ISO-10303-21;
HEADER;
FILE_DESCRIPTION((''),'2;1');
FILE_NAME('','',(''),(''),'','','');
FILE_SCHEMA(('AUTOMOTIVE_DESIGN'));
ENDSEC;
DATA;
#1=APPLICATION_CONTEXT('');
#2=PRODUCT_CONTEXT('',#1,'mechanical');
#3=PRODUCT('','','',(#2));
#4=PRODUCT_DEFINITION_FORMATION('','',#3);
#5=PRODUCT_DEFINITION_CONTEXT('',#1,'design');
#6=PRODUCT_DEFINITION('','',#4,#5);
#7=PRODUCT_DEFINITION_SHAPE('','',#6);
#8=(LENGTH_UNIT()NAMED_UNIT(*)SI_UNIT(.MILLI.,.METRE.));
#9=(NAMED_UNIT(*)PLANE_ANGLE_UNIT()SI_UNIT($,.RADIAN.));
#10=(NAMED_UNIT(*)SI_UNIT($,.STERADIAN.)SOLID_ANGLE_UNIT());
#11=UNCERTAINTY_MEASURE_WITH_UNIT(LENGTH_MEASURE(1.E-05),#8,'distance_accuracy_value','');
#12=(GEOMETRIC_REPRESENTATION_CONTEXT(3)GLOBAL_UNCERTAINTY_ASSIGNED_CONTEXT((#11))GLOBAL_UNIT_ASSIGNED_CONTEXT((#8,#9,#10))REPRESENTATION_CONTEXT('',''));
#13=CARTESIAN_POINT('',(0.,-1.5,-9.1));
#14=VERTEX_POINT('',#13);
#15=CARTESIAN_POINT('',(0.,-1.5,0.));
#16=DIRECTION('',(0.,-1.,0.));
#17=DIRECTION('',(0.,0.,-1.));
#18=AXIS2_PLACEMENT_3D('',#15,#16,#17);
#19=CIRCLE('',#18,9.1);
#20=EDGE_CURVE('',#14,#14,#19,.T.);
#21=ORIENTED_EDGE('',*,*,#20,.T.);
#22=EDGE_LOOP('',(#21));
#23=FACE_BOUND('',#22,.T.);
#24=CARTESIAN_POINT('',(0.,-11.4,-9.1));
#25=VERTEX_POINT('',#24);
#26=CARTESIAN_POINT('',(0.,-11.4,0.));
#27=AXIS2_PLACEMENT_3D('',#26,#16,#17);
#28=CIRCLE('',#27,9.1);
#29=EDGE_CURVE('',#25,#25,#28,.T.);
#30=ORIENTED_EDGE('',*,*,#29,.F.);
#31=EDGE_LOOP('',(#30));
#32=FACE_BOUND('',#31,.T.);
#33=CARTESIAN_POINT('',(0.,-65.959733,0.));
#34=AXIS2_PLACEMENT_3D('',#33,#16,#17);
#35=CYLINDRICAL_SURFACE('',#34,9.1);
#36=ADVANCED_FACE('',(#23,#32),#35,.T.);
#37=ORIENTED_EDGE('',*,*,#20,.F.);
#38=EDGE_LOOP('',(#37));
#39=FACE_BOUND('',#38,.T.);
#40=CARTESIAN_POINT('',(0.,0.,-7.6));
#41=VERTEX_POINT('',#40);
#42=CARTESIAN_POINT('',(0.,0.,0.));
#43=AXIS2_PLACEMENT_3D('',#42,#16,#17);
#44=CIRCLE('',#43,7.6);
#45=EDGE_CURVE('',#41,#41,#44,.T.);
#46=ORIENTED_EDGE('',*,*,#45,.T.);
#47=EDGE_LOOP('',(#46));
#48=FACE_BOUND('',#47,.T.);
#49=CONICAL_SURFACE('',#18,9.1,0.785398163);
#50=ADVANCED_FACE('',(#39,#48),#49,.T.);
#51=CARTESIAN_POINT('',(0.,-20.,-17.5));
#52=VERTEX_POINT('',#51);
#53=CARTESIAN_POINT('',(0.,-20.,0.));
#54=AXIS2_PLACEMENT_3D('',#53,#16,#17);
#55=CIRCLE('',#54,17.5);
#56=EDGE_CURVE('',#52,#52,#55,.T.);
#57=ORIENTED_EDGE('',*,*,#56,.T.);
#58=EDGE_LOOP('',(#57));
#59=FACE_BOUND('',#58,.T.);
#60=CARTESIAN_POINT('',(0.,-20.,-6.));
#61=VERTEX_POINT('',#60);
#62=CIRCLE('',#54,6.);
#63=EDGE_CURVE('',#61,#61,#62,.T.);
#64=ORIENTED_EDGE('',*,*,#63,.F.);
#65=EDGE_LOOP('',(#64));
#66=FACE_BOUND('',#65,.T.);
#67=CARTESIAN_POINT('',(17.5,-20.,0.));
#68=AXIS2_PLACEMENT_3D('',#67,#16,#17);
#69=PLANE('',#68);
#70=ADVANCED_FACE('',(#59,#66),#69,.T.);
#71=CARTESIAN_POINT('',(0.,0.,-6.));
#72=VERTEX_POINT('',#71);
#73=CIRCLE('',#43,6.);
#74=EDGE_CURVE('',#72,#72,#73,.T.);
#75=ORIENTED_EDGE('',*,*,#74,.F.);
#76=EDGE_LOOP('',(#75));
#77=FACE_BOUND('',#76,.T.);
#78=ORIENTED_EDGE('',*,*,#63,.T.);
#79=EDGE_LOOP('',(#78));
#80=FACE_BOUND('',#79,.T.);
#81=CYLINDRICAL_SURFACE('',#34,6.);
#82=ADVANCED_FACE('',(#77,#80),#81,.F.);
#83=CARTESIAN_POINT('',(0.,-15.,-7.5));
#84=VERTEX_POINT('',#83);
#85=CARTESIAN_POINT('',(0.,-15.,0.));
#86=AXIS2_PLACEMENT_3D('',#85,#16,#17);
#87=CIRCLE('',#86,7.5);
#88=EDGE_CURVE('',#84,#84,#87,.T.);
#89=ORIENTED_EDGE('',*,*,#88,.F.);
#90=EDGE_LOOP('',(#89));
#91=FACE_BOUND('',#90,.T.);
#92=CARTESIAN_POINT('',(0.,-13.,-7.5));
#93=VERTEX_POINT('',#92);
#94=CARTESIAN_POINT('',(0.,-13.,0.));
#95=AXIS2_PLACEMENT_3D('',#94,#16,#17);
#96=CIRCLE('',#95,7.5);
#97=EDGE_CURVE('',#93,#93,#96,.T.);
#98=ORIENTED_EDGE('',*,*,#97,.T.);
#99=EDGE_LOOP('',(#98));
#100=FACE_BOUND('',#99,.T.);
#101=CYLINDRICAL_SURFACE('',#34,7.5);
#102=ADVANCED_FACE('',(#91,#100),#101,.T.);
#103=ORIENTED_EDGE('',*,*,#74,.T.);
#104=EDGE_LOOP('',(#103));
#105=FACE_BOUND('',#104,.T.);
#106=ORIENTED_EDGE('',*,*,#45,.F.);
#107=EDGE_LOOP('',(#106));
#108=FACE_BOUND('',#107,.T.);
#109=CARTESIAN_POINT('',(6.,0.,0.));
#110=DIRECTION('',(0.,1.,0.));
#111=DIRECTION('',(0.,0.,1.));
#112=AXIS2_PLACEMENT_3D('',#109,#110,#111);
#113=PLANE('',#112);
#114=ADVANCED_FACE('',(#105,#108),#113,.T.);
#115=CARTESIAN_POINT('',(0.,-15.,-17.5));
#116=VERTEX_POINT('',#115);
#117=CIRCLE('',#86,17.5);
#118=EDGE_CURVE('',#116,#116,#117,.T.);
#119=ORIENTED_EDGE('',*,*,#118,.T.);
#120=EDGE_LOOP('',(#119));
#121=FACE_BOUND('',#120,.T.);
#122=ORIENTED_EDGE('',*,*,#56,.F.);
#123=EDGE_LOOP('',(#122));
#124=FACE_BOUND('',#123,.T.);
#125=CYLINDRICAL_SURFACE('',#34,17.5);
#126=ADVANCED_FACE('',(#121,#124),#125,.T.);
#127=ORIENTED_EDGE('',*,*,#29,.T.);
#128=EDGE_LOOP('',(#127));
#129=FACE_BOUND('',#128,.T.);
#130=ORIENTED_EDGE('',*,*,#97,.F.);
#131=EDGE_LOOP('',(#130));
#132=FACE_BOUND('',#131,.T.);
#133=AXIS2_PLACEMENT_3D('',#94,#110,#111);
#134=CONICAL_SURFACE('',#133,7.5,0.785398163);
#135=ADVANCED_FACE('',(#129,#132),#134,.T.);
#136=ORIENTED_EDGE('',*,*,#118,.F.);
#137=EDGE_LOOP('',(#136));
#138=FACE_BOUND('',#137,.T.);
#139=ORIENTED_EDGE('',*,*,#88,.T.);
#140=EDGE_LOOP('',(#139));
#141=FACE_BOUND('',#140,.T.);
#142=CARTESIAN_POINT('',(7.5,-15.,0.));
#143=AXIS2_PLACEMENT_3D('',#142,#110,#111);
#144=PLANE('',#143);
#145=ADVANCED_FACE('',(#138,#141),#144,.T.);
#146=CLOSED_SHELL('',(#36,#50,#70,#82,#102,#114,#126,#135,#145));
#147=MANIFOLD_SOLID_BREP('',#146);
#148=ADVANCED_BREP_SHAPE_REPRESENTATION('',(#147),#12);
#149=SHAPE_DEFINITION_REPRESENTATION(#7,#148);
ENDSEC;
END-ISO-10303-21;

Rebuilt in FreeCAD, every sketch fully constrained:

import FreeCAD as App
import Part
import Sketcher
from FreeCAD import Vector
Q = App.Units.Quantity

doc = App.newDocument("Part")
body = doc.addObject("PartDesign::Body", "Body")

# Sketch on XY plane
sketch1 = doc.addObject("Sketcher::SketchObject", "Sketch")
body.addObject(sketch1)
sketch1.AttachmentSupport = (doc.XY_Plane, [""])
sketch1.MapMode = "FlatFace"
sketch1.addGeometry([
    Part.LineSegment(Vector(7.6, 0, 0), Vector(6, 0, 0)),  # 0
    Part.LineSegment(Vector(6, 0, 0), Vector(6, -20, 0)),  # 1
    Part.LineSegment(Vector(6, -20, 0), Vector(17.5, -20, 0)),  # 2
    Part.LineSegment(Vector(17.5, -20, 0), Vector(17.5, -15, 0)),  # 3
    Part.LineSegment(Vector(17.5, -15, 0), Vector(7.5, -15, 0)),  # 4
    Part.LineSegment(Vector(7.5, -15, 0), Vector(7.5, -13, 0)),  # 5
    Part.LineSegment(Vector(7.5, -13, 0), Vector(9.1, -11.4, 0)),  # 6
    Part.LineSegment(Vector(9.1, -11.4, 0), Vector(9.1, -1.5, 0)),  # 7
    Part.LineSegment(Vector(9.1, -1.5, 0), Vector(7.6, 0, 0)),  # 8
], False)
sketch1.addConstraint([
    Sketcher.Constraint("Coincident", 0, 2, 1, 1),
    Sketcher.Constraint("Coincident", 1, 2, 2, 1),
    Sketcher.Constraint("Coincident", 2, 2, 3, 1),
    Sketcher.Constraint("Coincident", 3, 2, 4, 1),
    Sketcher.Constraint("Coincident", 4, 2, 5, 1),
    Sketcher.Constraint("Coincident", 5, 2, 6, 1),
    Sketcher.Constraint("Coincident", 6, 2, 7, 1),
    Sketcher.Constraint("Coincident", 7, 2, 8, 1),
    Sketcher.Constraint("Coincident", 8, 2, 0, 1),
    Sketcher.Constraint("Horizontal", 0),
    Sketcher.Constraint("Vertical", 1),
    Sketcher.Constraint("Horizontal", 2),
    Sketcher.Constraint("Vertical", 3),
    Sketcher.Constraint("Horizontal", 4),
    Sketcher.Constraint("Vertical", 5),
    Sketcher.Constraint("Vertical", 7),
    Sketcher.Constraint("PointOnObject", 0, 2, -1),
    Sketcher.Constraint("Perpendicular", 6, 8),
    Sketcher.Constraint("DistanceX", 4, 2, 4, 1, Q("10 mm")),
    Sketcher.Constraint("DistanceY", 1, 2, 1, 1, Q("20 mm")),
    Sketcher.Constraint("DistanceY", 3, 1, 3, 2, Q("5 mm")),
    Sketcher.Constraint("DistanceY", 5, 1, 5, 2, Q("2 mm")),
    Sketcher.Constraint("Angle", 6, Q("45 deg")),
    Sketcher.Constraint("DistanceX", 0, 2, 0, 1, Q("1.6 mm")),
    Sketcher.Constraint("DistanceX", 2, 1, 2, 2, Q("11.5 mm")),
    Sketcher.Constraint("DistanceY", 7, 1, 7, 2, Q("9.9 mm")),
    Sketcher.Constraint("DistanceX", -1, 1, 0, 2, Q("6 mm")),
])
revolution = doc.addObject("PartDesign::Revolution", "Revolution")
body.addObject(revolution)
revolution.Profile = sketch1
revolution.ReferenceAxis = (sketch1, ["V_Axis"])
revolution.Angle = 360

doc.recompute()
